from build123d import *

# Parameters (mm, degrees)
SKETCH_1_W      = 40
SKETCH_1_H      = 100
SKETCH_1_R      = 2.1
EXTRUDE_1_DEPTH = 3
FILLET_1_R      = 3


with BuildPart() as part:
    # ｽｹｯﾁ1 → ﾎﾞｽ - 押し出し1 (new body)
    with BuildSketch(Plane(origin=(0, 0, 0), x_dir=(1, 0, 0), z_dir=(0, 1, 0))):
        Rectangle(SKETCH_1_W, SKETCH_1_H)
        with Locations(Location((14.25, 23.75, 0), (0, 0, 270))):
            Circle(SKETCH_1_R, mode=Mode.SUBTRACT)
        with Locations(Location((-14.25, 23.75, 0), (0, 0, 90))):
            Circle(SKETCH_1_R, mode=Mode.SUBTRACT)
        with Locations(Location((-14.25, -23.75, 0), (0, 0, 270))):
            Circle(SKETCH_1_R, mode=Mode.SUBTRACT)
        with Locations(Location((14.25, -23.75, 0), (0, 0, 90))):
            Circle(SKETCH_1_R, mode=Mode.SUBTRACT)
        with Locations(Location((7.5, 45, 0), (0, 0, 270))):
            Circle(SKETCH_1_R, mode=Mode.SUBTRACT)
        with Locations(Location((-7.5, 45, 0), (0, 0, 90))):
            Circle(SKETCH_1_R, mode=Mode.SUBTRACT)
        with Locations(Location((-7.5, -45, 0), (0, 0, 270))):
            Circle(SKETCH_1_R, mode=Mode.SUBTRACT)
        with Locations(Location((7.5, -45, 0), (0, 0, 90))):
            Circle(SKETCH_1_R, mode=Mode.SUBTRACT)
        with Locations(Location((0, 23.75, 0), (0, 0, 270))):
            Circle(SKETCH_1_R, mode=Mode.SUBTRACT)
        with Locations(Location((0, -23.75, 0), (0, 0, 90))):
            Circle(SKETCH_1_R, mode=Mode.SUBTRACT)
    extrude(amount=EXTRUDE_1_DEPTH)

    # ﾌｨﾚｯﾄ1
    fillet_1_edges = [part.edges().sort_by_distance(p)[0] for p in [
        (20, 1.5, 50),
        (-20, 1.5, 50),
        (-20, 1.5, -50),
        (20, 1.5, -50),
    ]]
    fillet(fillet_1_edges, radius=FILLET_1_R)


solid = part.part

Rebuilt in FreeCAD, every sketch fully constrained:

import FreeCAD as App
import Part
import Sketcher
from FreeCAD import Vector


def edges_at(feature, points):
    """Names of the edges that pass closest to the given points."""
    edges = feature.Shape.Edges
    near = lambda p: min(range(len(edges)), key=lambda i: edges[i].distToShape(Part.Vertex(*p))[0])
    return sorted({f"Edge{near(p) + 1}" for p in points})


def add_polygon(sketch, points):
    """Adds a closed chain of lines whose ends are joined by coincident constraints."""
    first, n = sketch.GeometryCount, len(points)
    for a, b in zip(points, points[1:] + points[:1]):
        sketch.addGeometry(Part.LineSegment(App.Vector(*a, 0), App.Vector(*b, 0)), False)
    for i in range(n):
        sketch.addConstraint(Sketcher.Constraint("Coincident", first + i, 2, first + (i + 1) % n, 1))

doc = App.newDocument("Part")
params = doc.addObject("Spreadsheet::Sheet", "Params")
for row, (alias, value) in enumerate([
    ("sketch1_diameter", "4.2 mm"),
    ("sketch1_width", "40 mm"),
    ("sketch1_height", "100 mm"),
    ("pad1_length", "3 mm"),
    ("fillet_radius", "3 mm"),
], start=1):
    params.set(f"A{row}", alias)
    params.set(f"B{row}", "=" + value)
    params.setAlias(f"B{row}", alias)

body = doc.addObject("PartDesign::Body", "Body")

# Sketch on XZ plane
sketch1 = body.newObject("Sketcher::SketchObject", "Sketch")
sketch1.AttachmentSupport = (doc.getObject("XZ_Plane"), [""])
sketch1.MapMode = "FlatFace"
add_polygon(sketch1, [(-20, -50), (-20, 50), (20, 50), (20, -50)])  # lines 0-3
sketch1.addGeometry(Part.Circle(Vector(-14.2, 23.8, 0), Vector(0, 0, 1), 2.1), False)  # 4
sketch1.addGeometry(Part.Circle(Vector(-7.5, 45, 0), Vector(0, 0, 1), 2.1), False)  # 5
sketch1.addGeometry(Part.Circle(Vector(7.5, 45, 0), Vector(0, 0, 1), 2.1), False)  # 6
sketch1.addGeometry(Part.Circle(Vector(0, 23.8, 0), Vector(0, 0, 1), 2.1), False)  # 7
sketch1.addGeometry(Part.Circle(Vector(14.2, 23.8, 0), Vector(0, 0, 1), 2.1), False)  # 8
sketch1.addGeometry(Part.Circle(Vector(-14.2, -23.8, 0), Vector(0, 0, 1), 2.1), False)  # 9
sketch1.addGeometry(Part.Circle(Vector(-7.5, -45, 0), Vector(0, 0, 1), 2.1), False)  # 10
sketch1.addGeometry(Part.Circle(Vector(0, -23.8, 0), Vector(0, 0, 1), 2.1), False)  # 11
sketch1.addGeometry(Part.Circle(Vector(7.5, -45, 0), Vector(0, 0, 1), 2.1), False)  # 12
sketch1.addGeometry(Part.Circle(Vector(14.2, -23.8, 0), Vector(0, 0, 1), 2.1), False)  # 13
sketch1.addConstraint([
    Sketcher.Constraint("Vertical", 0),
    Sketcher.Constraint("Horizontal", 1),
    Sketcher.Constraint("Vertical", 2),
    Sketcher.Constraint("Horizontal", 3),
    Sketcher.Constraint("Equal", 4, 5),
    Sketcher.Constraint("Equal", 5, 6),
    Sketcher.Constraint("Equal", 6, 7),
    Sketcher.Constraint("Equal", 7, 8),
    Sketcher.Constraint("Equal", 8, 9),
    Sketcher.Constraint("Equal", 9, 10),
    Sketcher.Constraint("Equal", 10, 11),
    Sketcher.Constraint("Equal", 11, 12),
    Sketcher.Constraint("Equal", 12, 13),
    Sketcher.Constraint("Symmetric", 8, 3, 9, 3, -1, 1),
    Sketcher.Constraint("Symmetric", 6, 3, 10, 3, -1, 1),
    Sketcher.Constraint("Symmetric", 7, 3, 11, 3, -1, 1),
    Sketcher.Constraint("Symmetric", 5, 3, 12, 3, -1, 1),
    Sketcher.Constraint("Symmetric", 4, 3, 13, 3, -1, 1),
    Sketcher.Constraint("Symmetric", 0, 2, 2, 2, -1, 1),
    Sketcher.Constraint("Symmetric", 5, 3, 6, 3, -2),
    Sketcher.Constraint("Symmetric", 4, 3, 8, 3, -2),
    Sketcher.Constraint("PointOnObject", 7, 3, -2),
    Sketcher.Constraint("Horizontal", 4, 3, 7, 3),
    Sketcher.Constraint("Diameter", 4, 4.2),
    Sketcher.Constraint("DistanceX", 1, 1, 1, 2, 40.0),
    Sketcher.Constraint("DistanceY", 0, 1, 0, 2, 100.0),
    Sketcher.Constraint("DistanceY", -1, 1, 5, 3, 45.0),
    Sketcher.Constraint("DistanceX", 5, 3, 6, 3, 15.0),
    Sketcher.Constraint("DistanceX", 4, 3, 8, 3, 28.5),
    Sketcher.Constraint("DistanceY", 9, 3, 4, 3, 47.5),
])
sketch1.setExpression("Constraints[27]", "Params.sketch1_diameter")
sketch1.setExpression("Constraints[28]", "Params.sketch1_width")
sketch1.setExpression("Constraints[29]", "Params.sketch1_height")
pad1 = body.newObject("PartDesign::Pad", "Pad")
pad1.Profile = sketch1
pad1.setExpression("Length", "Params.pad1_length")
pad1.Reversed = True
doc.recompute()

fillet = body.newObject("PartDesign::Fillet", "Fillet")
fillet.Base = (pad1, edges_at(pad1, [
    (20, 1.5, 50),
    (-20, 1.5, 50),
    (-20, 1.5, -50),
    (20, 1.5, -50),
]))
fillet.setExpression("Radius", "Params.fillet_radius")

doc.recompute()
